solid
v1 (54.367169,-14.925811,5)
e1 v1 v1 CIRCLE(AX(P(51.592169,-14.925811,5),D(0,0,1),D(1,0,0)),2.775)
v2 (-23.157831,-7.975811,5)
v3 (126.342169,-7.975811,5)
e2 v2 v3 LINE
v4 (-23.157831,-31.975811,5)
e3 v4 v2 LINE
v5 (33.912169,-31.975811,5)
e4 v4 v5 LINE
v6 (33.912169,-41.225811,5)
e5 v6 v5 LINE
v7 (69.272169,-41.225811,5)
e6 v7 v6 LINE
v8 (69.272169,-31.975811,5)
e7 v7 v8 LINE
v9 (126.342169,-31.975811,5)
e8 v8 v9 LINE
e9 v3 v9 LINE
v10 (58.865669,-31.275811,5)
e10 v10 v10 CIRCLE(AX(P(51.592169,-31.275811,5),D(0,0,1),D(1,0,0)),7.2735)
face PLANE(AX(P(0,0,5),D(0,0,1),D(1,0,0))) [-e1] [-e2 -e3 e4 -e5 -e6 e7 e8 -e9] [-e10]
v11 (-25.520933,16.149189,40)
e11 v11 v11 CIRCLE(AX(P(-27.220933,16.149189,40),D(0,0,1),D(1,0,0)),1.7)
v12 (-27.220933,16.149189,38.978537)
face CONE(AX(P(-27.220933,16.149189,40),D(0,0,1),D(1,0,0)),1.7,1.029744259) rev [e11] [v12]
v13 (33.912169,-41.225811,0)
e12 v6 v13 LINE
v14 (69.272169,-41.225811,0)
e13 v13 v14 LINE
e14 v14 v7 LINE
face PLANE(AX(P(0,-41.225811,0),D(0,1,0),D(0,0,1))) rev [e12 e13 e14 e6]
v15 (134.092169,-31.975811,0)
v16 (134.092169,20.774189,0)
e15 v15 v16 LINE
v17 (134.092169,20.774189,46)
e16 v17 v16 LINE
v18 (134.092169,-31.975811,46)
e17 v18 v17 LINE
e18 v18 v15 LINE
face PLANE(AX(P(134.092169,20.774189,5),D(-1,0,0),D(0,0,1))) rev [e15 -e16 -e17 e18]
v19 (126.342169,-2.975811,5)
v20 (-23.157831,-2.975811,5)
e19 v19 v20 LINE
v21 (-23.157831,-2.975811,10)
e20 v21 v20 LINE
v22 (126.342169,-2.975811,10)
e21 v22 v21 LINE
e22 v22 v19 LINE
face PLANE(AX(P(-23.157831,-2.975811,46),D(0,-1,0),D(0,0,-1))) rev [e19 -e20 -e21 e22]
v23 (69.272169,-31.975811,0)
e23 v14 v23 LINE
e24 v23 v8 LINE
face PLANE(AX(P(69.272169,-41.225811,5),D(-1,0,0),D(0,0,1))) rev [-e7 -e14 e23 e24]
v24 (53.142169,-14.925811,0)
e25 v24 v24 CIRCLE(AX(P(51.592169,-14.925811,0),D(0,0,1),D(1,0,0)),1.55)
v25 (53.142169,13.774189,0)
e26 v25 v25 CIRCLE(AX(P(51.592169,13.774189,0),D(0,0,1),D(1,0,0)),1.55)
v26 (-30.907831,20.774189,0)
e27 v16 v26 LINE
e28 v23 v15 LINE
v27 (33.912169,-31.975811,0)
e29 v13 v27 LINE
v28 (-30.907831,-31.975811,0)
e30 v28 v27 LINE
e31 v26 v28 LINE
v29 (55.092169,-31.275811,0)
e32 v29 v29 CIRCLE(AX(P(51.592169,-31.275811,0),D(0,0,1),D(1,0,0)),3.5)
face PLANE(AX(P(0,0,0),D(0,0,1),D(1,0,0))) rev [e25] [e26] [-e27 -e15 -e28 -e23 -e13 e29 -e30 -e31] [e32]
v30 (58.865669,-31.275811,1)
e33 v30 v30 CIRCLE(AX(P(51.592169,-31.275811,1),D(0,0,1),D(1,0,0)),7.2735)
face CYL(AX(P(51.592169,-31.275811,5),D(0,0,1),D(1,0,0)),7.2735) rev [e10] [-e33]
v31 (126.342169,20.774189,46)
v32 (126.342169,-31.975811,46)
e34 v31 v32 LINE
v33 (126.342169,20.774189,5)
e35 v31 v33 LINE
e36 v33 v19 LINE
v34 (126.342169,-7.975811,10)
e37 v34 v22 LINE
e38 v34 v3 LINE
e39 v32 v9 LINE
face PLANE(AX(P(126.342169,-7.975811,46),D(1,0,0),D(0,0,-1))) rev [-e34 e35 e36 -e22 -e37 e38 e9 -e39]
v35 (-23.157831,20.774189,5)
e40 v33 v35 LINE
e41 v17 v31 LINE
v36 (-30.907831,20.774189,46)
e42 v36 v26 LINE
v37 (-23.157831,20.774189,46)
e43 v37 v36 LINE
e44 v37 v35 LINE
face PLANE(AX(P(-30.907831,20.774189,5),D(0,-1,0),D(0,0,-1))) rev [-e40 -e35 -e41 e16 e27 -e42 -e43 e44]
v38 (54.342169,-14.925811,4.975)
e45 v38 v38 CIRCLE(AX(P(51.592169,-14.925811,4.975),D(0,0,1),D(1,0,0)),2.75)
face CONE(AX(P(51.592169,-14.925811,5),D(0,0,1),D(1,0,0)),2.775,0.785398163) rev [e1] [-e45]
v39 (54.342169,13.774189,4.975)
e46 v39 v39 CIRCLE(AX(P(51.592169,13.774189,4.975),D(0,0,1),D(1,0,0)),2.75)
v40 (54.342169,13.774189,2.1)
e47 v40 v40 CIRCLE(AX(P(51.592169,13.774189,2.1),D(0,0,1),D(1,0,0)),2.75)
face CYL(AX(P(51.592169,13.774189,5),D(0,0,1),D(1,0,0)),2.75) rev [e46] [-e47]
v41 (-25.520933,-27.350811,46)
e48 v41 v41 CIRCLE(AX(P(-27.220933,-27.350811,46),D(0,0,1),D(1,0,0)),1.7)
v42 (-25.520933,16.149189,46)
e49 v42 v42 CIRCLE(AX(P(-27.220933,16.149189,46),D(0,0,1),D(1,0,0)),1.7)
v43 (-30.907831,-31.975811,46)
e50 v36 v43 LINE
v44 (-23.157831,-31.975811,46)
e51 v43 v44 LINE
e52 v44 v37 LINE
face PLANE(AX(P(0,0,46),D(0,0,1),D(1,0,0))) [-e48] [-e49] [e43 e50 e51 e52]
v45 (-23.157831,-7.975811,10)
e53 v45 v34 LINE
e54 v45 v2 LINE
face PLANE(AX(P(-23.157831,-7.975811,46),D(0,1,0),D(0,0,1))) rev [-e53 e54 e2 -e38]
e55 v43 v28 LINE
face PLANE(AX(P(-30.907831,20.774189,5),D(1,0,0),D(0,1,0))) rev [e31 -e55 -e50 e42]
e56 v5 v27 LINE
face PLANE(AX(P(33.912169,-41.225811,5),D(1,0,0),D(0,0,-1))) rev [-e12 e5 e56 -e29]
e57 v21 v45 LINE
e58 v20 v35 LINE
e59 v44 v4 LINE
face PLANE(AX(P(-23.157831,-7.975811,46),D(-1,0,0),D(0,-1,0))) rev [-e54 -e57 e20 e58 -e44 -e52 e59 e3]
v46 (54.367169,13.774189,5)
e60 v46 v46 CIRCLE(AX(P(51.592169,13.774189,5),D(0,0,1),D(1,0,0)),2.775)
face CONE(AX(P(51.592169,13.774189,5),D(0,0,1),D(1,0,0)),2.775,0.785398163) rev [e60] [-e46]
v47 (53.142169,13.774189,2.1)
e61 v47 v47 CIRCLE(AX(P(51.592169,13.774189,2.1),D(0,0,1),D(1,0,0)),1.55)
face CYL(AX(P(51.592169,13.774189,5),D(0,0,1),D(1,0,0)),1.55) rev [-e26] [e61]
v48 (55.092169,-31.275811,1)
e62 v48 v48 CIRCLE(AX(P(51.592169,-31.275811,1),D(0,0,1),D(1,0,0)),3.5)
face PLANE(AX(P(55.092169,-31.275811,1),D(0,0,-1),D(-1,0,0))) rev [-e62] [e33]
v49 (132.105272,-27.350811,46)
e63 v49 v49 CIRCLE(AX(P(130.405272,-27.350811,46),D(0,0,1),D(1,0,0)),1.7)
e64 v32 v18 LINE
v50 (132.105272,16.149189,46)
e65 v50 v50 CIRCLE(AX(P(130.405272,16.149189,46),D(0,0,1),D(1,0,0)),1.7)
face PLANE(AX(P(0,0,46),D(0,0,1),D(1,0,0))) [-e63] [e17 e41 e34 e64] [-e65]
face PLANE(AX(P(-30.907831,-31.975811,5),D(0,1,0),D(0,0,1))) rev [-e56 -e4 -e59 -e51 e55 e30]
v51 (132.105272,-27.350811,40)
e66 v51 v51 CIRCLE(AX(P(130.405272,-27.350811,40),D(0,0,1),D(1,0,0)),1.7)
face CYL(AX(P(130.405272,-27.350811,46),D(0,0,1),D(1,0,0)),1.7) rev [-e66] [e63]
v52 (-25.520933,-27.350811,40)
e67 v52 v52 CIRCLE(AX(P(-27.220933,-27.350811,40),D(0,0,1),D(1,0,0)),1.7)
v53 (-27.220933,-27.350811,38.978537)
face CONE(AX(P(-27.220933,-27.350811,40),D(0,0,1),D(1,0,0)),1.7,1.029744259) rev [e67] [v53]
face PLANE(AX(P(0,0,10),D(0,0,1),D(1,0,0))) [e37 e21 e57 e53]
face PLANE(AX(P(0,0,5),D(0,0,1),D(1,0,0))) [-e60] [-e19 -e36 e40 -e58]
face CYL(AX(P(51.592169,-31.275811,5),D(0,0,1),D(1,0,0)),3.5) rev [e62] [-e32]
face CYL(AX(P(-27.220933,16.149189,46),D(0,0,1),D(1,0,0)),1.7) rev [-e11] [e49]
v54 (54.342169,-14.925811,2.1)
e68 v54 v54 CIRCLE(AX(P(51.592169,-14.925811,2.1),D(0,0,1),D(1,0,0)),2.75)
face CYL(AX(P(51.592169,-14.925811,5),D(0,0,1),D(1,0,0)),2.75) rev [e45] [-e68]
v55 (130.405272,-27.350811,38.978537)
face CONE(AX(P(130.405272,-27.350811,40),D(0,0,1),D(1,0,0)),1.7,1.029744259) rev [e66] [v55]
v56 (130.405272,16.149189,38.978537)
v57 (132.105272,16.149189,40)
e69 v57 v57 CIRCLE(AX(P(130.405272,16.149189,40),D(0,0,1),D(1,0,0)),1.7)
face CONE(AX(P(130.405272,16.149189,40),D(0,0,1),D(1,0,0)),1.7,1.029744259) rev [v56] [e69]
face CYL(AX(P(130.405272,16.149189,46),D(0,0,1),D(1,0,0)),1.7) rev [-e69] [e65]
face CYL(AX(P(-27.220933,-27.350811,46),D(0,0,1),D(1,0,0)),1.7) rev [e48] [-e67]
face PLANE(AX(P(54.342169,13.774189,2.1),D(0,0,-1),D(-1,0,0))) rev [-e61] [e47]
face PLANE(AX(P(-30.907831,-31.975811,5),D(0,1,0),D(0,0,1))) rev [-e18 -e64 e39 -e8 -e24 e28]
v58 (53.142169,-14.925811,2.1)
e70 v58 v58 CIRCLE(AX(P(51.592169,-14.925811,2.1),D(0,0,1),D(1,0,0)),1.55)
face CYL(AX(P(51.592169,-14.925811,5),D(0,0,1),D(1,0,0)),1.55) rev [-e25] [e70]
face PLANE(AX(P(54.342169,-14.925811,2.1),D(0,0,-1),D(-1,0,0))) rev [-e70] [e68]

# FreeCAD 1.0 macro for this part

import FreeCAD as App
import Part
import Sketcher
from FreeCAD import Vector
Q = App.Units.Quantity


def add_polygon(sketch, points):
    """Adds a closed chain of lines whose ends are joined by coincident constraints."""
    first, n = sketch.GeometryCount, len(points)
    for a, b in zip(points, points[1:] + points[:1]):
        sketch.addGeometry(Part.LineSegment(App.Vector(*a, 0), App.Vector(*b, 0)), False)
    for i in range(n):
        sketch.addConstraint(Sketcher.Constraint("Coincident", first + i, 2, first + (i + 1) % n, 1))

doc = App.newDocument("Part")
params = doc.addObject("Spreadsheet::Sheet", "Params")
for row, (alias, value) in enumerate([
    ("sketch1_width", "165 mm"),
    ("sketch1_height", "52.75 mm"),
    ("pad1_length", "5 mm"),
    ("sketch2_height", "24 mm"),
    ("sketch2_width", "149.5 mm"),
    ("sketch2_height2", "52.75 mm"),
    ("pad2_length", "41 mm"),
    ("sketch3_height", "5 mm"),
    ("sketch3_width", "149.5 mm"),
    ("pocket1_length", "36 mm"),
    ("sketch4_diameter", "3.4 mm"),
    ("hole_diameter", "3.4 mm"),
    ("hole_depth", "6 mm"),
    ("sketch5_height", "5 mm"),
    ("sketch5_width", "1.2 mm"),
    ("sketch5_height2", "2.1 mm"),
    ("sketch5_width2", "1.55 mm"),
    ("groove_angle", "360 deg"),
    ("linearpattern_pitch", "28.7 mm"),
    ("sketch6_height", "5 mm"),
    ("sketch6_width", "35.36 mm"),
    ("pad3_length", "9.25 mm"),
    ("sketch7_diameter", "7 mm"),
    ("hole2_diameter", "7 mm"),
    ("hole2_cbore_diameter", "14.547 mm"),
    ("hole2_cbore_depth", "4 mm"),
], start=1):
    params.set(f"A{row}", alias)
    params.set(f"B{row}", "=" + value)
    params.setAlias(f"B{row}", alias)

body = doc.addObject("PartDesign::Body", "Body")

sketch1 = body.newObject("Sketcher::SketchObject", "Sketch")
sketch1.AttachmentSupport = (doc.getObject("XY_Plane"), [""])
sketch1.MapMode = "FlatFace"
add_polygon(sketch1, [(-31, 21), (-31, -32), (134, -32), (134, 21)])
sketch1.addConstraint([
    Sketcher.Constraint("Vertical", 0),
    Sketcher.Constraint("Horizontal", 1),
    Sketcher.Constraint("Vertical", 2),
    Sketcher.Constraint("Horizontal", 3),
    Sketcher.Constraint("DistanceX", 1, 1, 1, 2, Q("165 mm")),
    Sketcher.Constraint("DistanceY", 0, 2, 0, 1, Q("52.75 mm")),
    Sketcher.Constraint("DistanceX", 0, 2, -1, 1, Q("30.907831 mm")),
    Sketcher.Constraint("DistanceY", 0, 2, -1, 1, Q("31.975811 mm")),
])
sketch1.setExpression("Constraints[8]", "Params.sketch1_width")
sketch1.setExpression("Constraints[9]", "Params.sketch1_height")
pad1 = body.newObject("PartDesign::Pad", "Pad")
pad1.Profile = sketch1
pad1.setExpression("Length", "Params.pad1_length")

sketch2 = body.newObject("Sketcher::SketchObject", "Sketch001")
sketch2.AttachmentSupport = (doc.getObject("XY_Plane"), [""])
sketch2.MapMode = "FlatFace"
sketch2.AttachmentOffset = App.Placement(Vector(0, 0, 5), App.Rotation())
add_polygon(sketch2, [(-23, 21), (-31, 21), (-31, -32), (-23, -32), (-23, -8), (126, -8), (126, -32), (134, -32), (134, 21), (126, 21), (126, -3), (-23, -3)])
sketch2.addConstraint([
    Sketcher.Constraint("Horizontal", 0),
    Sketcher.Constraint("Vertical", 1),
    Sketcher.Constraint("Horizontal", 2),
    Sketcher.Constraint("Vertical", 3),
    Sketcher.Constraint("Horizontal", 4),
    Sketcher.Constraint("Vertical", 5),
    Sketcher.Constraint("Horizontal", 6),
    Sketcher.Constraint("Vertical", 7),
    Sketcher.Constraint("Horizontal", 8),
    Sketcher.Constraint("Vertical", 9),
    Sketcher.Constraint("Horizontal", 10),
    Sketcher.Constraint("Vertical", 11),
    Sketcher.Constraint("Horizontal", 2, 2, 5, 2),
    Sketcher.Constraint("Horizontal", 0, 2, 7, 2),
    Sketcher.Constraint("Vertical", 5, 2, 8, 2),
    Sketcher.Constraint("Vertical", 3, 2, 10, 2),
    Sketcher.Constraint("Equal", 2, 6),
    Sketcher.Constraint("DistanceY", 3, 1, 3, 2, Q("24 mm")),
    Sketcher.Constraint("DistanceX", 4, 1, 4, 2, Q("149.5 mm")),
    Sketcher.Constraint("DistanceX", 1, 2, 6, 2, Q("165 mm")),
    Sketcher.Constraint("DistanceY", 4, 2, 9, 2, Q("5 mm")),
    Sketcher.Constraint("DistanceY", 1, 2, 1, 1, Q("52.75 mm")),
    Sketcher.Constraint("DistanceX", 0, 2, -1, 1, Q("30.907831 mm")),
    Sketcher.Constraint("DistanceY", -1, 1, 0, 2, Q("20.774189 mm")),
])
sketch2.setExpression("Constraints[29]", "Params.sketch2_height")
sketch2.setExpression("Constraints[30]", "Params.sketch2_width")
sketch2.setExpression("Constraints[33]", "Params.sketch2_height2")
pad2 = body.newObject("PartDesign::Pad", "Pad001")
pad2.Profile = sketch2
pad2.setExpression("Length", "Params.pad2_length")

sketch3 = body.newObject("Sketcher::SketchObject", "Sketch002")
sketch3.AttachmentSupport = (doc.getObject("XY_Plane"), [""])
sketch3.MapMode = "FlatFace"
sketch3.AttachmentOffset = App.Placement(Vector(0, 0, 46), App.Rotation())
add_polygon(sketch3, [(-23, -3), (-23, -8), (126, -8), (126, -3)])
sketch3.addConstraint([
    Sketcher.Constraint("Vertical", 0),
    Sketcher.Constraint("Horizontal", 1),
    Sketcher.Constraint("Vertical", 2),
    Sketcher.Constraint("Horizontal", 3),
    Sketcher.Constraint("DistanceY", 0, 2, 0, 1, Q("5 mm")),
    Sketcher.Constraint("DistanceX", 1, 1, 1, 2, Q("149.5 mm")),
    Sketcher.Constraint("DistanceX", 0, 2, -1, 1, Q("23.157831 mm")),
    Sketcher.Constraint("DistanceY", 0, 2, -1, 1, Q("7.975811 mm")),
])
sketch3.setExpression("Constraints[8]", "Params.sketch3_height")
sketch3.setExpression("Constraints[9]", "Params.sketch3_width")
pocket1 = body.newObject("PartDesign::Pocket", "Pocket")
pocket1.Profile = sketch3
pocket1.setExpression("Length", "Params.pocket1_length")

sketch4 = body.newObject("Sketcher::SketchObject", "Sketch003")
sketch4.AttachmentSupport = (doc.getObject("XY_Plane"), [""])
sketch4.MapMode = "FlatFace"
sketch4.AttachmentOffset = App.Placement(Vector(0, 0, 46), App.Rotation())
sketch4.addGeometry([
    Part.Circle(Vector(-27.2, 16.1, 0), Vector(0, 0, 1), 1.7),
    Part.Circle(Vector(130.4, 16.1, 0), Vector(0, 0, 1), 1.7),
    Part.Circle(Vector(130.4, -27.4, 0), Vector(0, 0, 1), 1.7),
    Part.Circle(Vector(-27.2, -27.4, 0), Vector(0, 0, 1), 1.7),
], False)
sketch4.addConstraint([
    Sketcher.Constraint("Equal", 0, 1),
    Sketcher.Constraint("Equal", 1, 2),
    Sketcher.Constraint("Equal", 2, 3),
    Sketcher.Constraint("Horizontal", 0, 3, 1, 3),
    Sketcher.Constraint("Horizontal", 2, 3, 3, 3),
    Sketcher.Constraint("Vertical", 1, 3, 2, 3),
    Sketcher.Constraint("Vertical", 0, 3, 3, 3),
    Sketcher.Constraint("Diameter", 0, Q("3.4 mm")),
    Sketcher.Constraint("DistanceY", 2, 3, 1, 3, Q("43.5 mm")),
    Sketcher.Constraint("DistanceY", -1, 1, 0, 3, Q("16.149189 mm")),
    Sketcher.Constraint("DistanceX", -1, 1, 1, 3, Q("130.405272 mm")),
    Sketcher.Constraint("DistanceX", 0, 3, -1, 1, Q("27.220933 mm")),
])
sketch4.setExpression("Constraints[7]", "Params.sketch4_diameter")
doc.recompute()
hole = body.newObject("PartDesign::Hole", "Hole")
hole.Profile = sketch4
hole.ThreadType = "None"
hole.setExpression("Diameter", "Params.hole_diameter")
hole.DepthType = "Dimension"
hole.setExpression("Depth", "Params.hole_depth")
hole.DrillPoint = "Angled"
hole.DrillPointAngle = 118

sketch5 = body.newObject("Sketcher::SketchObject", "Sketch004")
sketch5.AttachmentSupport = (doc.getObject("YZ_Plane"), [""])
sketch5.MapMode = "FlatFace"
sketch5.AttachmentOffset = App.Placement(Vector(0, 0, 51.592169), App.Rotation())
add_polygon(sketch5, [(13.774, 0), (13.774, 5), (10.999, 5), (11.024, 4.975), (11.024, 2.1), (12.224, 2.1), (12.224, 0)])
sketch5.addGeometry(Part.LineSegment(Vector(13.774, 5, 0), Vector(13.774, 0, 0)), True)
sketch5.addConstraint([
    Sketcher.Constraint("Vertical", 0),
    Sketcher.Constraint("Horizontal", 1),
    Sketcher.Constraint("Vertical", 3),
    Sketcher.Constraint("Horizontal", 4),
    Sketcher.Constraint("Vertical", 5),
    Sketcher.Constraint("Horizontal", 6),
    Sketcher.Constraint("Vertical", 7),
    Sketcher.Constraint("Coincident", 7, 1, 0, 2),
    Sketcher.Constraint("PointOnObject", 5, 2, -1),
    Sketcher.Constraint("PointOnObject", 7, 2, -1),
    Sketcher.Constraint("DistanceY", 0, 1, 0, 2, Q("5 mm")),
    Sketcher.Constraint("Angle", 2, Q("-45 deg")),
    Sketcher.Constraint("DistanceX", 4, 1, 4, 2, Q("1.2 mm")),
    Sketcher.Constraint("DistanceY", 5, 2, 5, 1, Q("2.1 mm")),
    Sketcher.Constraint("DistanceX", 6, 1, 6, 2, Q("1.55 mm")),
    Sketcher.Constraint("DistanceX", 1, 2, 1, 1, Q("2.775 mm")),
    Sketcher.Constraint("DistanceX", -1, 1, 0, 2, Q("13.774189 mm")),
])
sketch5.setExpression("Constraints[17]", "Params.sketch5_height")
sketch5.setExpression("Constraints[19]", "Params.sketch5_width")
sketch5.setExpression("Constraints[20]", "Params.sketch5_height2")
sketch5.setExpression("Constraints[21]", "Params.sketch5_width2")
groove = body.newObject("PartDesign::Groove", "Groove")
groove.Profile = sketch5
groove.ReferenceAxis = (sketch5, ["Axis0"])
groove.setExpression("Angle", "Params.groove_angle")
doc.recompute()

linearpattern = body.newObject("PartDesign::LinearPattern", "LinearPattern")
linearpattern.Originals = [groove]
linearpattern.Direction = (doc.getObject("Y_Axis"), [""])
linearpattern.Mode = "offset"
linearpattern.setExpression("Offset", "Params.linearpattern_pitch")
linearpattern.Occurrences = 2
linearpattern.Reversed = True
body.Tip = linearpattern

sketch6 = body.newObject("Sketcher::SketchObject", "Sketch005")
sketch6.AttachmentSupport = (doc.getObject("XZ_Plane"), [""])
sketch6.MapMode = "FlatFace"
sketch6.AttachmentOffset = App.Placement(Vector(0, 0, 31.975811), App.Rotation())
add_polygon(sketch6, [(34, 5), (34, 0), (69, 0), (69, 5)])
sketch6.addConstraint([
    Sketcher.Constraint("Vertical", 0),
    Sketcher.Constraint("Horizontal", 1),
    Sketcher.Constraint("Vertical", 2),
    Sketcher.Constraint("Horizontal", 3),
    Sketcher.Constraint("PointOnObject", 0, 2, -1),
    Sketcher.Constraint("DistanceY", 0, 2, 0, 1, Q("5 mm")),
    Sketcher.Constraint("DistanceX", 1, 1, 1, 2, Q("35.36 mm")),
    Sketcher.Constraint("DistanceX", -1, 1, 0, 2, Q("33.912169 mm")),
])
sketch6.setExpression("Constraints[9]", "Params.sketch6_height")
sketch6.setExpression("Constraints[10]", "Params.sketch6_width")
pad3 = body.newObject("PartDesign::Pad", "Pad002")
pad3.Profile = sketch6
pad3.setExpression("Length", "Params.pad3_length")

sketch7 = body.newObject("Sketcher::SketchObject", "Sketch006")
sketch7.AttachmentSupport = (doc.getObject("XY_Plane"), [""])
sketch7.MapMode = "FlatFace"
sketch7.AttachmentOffset = App.Placement(Vector(0, 0, 5), App.Rotation())
sketch7.addGeometry(Part.Circle(Vector(51.6, -31.3, 0), Vector(0, 0, 1), 3.5), False)
sketch7.addConstraint([
    Sketcher.Constraint("Diameter", 0, Q("7 mm")),
    Sketcher.Constraint("DistanceX", -1, 1, 0, 3, Q("51.592169 mm")),
    Sketcher.Constraint("DistanceY", 0, 3, -1, 1, Q("31.275811 mm")),
])
sketch7.setExpression("Constraints[0]", "Params.sketch7_diameter")
doc.recompute()
hole2 = body.newObject("PartDesign::Hole", "Hole001")
hole2.Profile = sketch7
hole2.ThreadType = "None"
hole2.setExpression("Diameter", "Params.hole2_diameter")
hole2.DepthType = "ThroughAll"
hole2.HoleCutType = "Counterbore"
hole2.setExpression("HoleCutDiameter", "Params.hole2_cbore_diameter")
hole2.setExpression("HoleCutDepth", "Params.hole2_cbore_depth")

doc.recompute()
